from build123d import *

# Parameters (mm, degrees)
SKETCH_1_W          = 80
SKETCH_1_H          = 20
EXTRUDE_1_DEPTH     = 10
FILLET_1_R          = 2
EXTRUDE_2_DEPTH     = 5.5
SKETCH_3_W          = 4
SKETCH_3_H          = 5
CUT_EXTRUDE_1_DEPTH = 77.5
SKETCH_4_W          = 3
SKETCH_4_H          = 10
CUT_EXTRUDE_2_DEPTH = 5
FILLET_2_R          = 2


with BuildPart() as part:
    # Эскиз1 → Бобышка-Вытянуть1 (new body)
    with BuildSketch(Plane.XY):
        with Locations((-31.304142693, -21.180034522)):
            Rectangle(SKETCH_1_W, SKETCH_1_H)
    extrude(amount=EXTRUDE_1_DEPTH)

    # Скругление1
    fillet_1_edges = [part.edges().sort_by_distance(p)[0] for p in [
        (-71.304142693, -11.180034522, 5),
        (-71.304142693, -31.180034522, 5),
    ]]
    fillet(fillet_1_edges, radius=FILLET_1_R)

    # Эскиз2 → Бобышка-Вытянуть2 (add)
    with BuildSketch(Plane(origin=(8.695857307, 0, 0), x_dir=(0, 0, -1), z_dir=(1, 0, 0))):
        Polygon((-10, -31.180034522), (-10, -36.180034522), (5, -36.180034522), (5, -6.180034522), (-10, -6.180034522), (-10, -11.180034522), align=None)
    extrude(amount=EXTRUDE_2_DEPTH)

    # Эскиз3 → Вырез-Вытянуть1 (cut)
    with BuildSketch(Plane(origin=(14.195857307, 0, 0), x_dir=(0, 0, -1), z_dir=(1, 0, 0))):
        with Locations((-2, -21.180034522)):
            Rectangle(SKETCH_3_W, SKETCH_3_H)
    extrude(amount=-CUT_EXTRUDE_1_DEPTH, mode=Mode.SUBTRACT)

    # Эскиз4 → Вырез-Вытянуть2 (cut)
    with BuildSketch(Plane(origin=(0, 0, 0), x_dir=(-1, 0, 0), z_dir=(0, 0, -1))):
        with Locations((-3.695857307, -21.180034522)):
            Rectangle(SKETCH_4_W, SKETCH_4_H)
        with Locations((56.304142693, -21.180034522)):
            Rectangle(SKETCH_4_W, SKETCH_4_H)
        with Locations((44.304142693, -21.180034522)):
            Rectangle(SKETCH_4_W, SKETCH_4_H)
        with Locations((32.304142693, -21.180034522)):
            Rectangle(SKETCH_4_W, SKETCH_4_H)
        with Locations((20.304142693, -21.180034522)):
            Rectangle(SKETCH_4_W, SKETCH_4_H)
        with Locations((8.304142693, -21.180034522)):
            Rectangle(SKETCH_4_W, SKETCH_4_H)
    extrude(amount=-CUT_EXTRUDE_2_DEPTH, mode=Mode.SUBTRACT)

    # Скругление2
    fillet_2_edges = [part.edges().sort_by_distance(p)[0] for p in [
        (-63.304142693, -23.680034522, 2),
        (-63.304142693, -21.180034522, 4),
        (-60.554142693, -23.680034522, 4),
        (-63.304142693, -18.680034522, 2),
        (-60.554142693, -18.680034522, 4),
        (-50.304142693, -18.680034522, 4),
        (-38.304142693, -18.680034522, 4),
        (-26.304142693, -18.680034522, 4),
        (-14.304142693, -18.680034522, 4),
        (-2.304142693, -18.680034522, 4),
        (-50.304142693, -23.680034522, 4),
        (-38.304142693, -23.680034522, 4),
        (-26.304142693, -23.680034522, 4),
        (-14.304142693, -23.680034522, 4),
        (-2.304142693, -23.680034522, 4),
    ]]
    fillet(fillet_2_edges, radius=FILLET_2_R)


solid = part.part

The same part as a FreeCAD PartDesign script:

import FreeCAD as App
import Part
import Sketcher
from FreeCAD import Vector
Q = App.Units.Quantity


def edges_at(feature, points):
    """Names of the edges that pass closest to the given points."""
    edges = feature.Shape.Edges
    near = lambda p: min(range(len(edges)), key=lambda i: edges[i].distToShape(Part.Vertex(*p))[0])
    return sorted({f"Edge{near(p) + 1}" for p in points})

doc = App.newDocument("Part")
params = doc.addObject("Spreadsheet::Sheet", "Params")
for row, (alias, value) in enumerate([
    ("sketch1_width", "80 mm"),
    ("sketch1_height", "20 mm"),
    ("pad1_length", "10 mm"),
    ("fillet_radius", "2 mm"),
    ("sketch2_width", "30 mm"),
    ("sketch2_height", "15 mm"),
    ("pad2_length", "5.5 mm"),
    ("sketch3_width", "5 mm"),
    ("sketch3_height", "4 mm"),
    ("pocket1_length", "77.5 mm"),
    ("sketch4_width", "3 mm"),
    ("sketch4_height", "10 mm"),
    ("pocket2_length", "5 mm"),
    ("fillet2_radius", "2 mm"),
], start=1):
    params.set(f"A{row}", alias)
    params.set(f"B{row}", "=" + value)
    params.setAlias(f"B{row}", alias)

body = doc.addObject("PartDesign::Body", "Body")

# Sketch on XY plane
sketch1 = body.newObject("Sketcher::SketchObject", "Sketch")
sketch1.AttachmentSupport = (doc.getObject("XY_Plane"), [""])
sketch1.MapMode = "FlatFace"
sketch1.addGeometry(Part.LineSegment(Vector(-71, -11, 0), Vector(-71, -31, 0)), False)
sketch1.addGeometry(Part.LineSegment(Vector(-71, -31, 0), Vector(9, -31, 0)), False)
sketch1.addGeometry(Part.LineSegment(Vector(9, -31, 0), Vector(9, -11, 0)), False)
sketch1.addGeometry(Part.LineSegment(Vector(9, -11, 0), Vector(-71, -11, 0)), False)
sketch1.addConstraint(Sketcher.Constraint("Coincident", 0, 2, 1, 1))
sketch1.addConstraint(Sketcher.Constraint("Coincident", 1, 2, 2, 1))
sketch1.addConstraint(Sketcher.Constraint("Coincident", 2, 2, 3, 1))
sketch1.addConstraint(Sketcher.Constraint("Coincident", 3, 2, 0, 1))
sketch1.addConstraint(Sketcher.Constraint("Vertical", 0))
sketch1.addConstraint(Sketcher.Constraint("Horizontal", 1))
sketch1.addConstraint(Sketcher.Constraint("Vertical", 2))
sketch1.addConstraint(Sketcher.Constraint("Horizontal", 3))
sketch1.addConstraint(Sketcher.Constraint("DistanceX", 1, 1, 1, 2, Q("80 mm")))
sketch1.addConstraint(Sketcher.Constraint("DistanceY", 0, 2, 0, 1, Q("20 mm")))
sketch1.addConstraint(Sketcher.Constraint("DistanceX", 0, 2, -1, 1, Q("71.304143 mm")))
sketch1.addConstraint(Sketcher.Constraint("DistanceY", 0, 2, -1, 1, Q("31.180035 mm")))
sketch1.setExpression("Constraints[8]", "Params.sketch1_width")
sketch1.setExpression("Constraints[9]", "Params.sketch1_height")
pad1 = body.newObject("PartDesign::Pad", "Pad")
pad1.Profile = sketch1
pad1.setExpression("Length", "Params.pad1_length")
doc.recompute()

fillet = body.newObject("PartDesign::Fillet", "Fillet")
fillet.Base = (pad1, edges_at(pad1, [(-71.304, -11.18, 5), (-71.304, -31.18, 5)]))
fillet.setExpression("Radius", "Params.fillet_radius")

# Sketch on YZ plane
sketch2 = body.newObject("Sketcher::SketchObject", "Sketch001")
sketch2.AttachmentSupport = (doc.getObject("YZ_Plane"), [""])
sketch2.MapMode = "FlatFace"
sketch2.AttachmentOffset = App.Placement(Vector(0, 0, 8.695857), App.Rotation())
sketch2.addGeometry(Part.LineSegment(Vector(-36, 10, 0), Vector(-36, -5, 0)), False)
sketch2.addGeometry(Part.LineSegment(Vector(-36, -5, 0), Vector(-6, -5, 0)), False)
sketch2.addGeometry(Part.LineSegment(Vector(-6, -5, 0), Vector(-6, 10, 0)), False)
sketch2.addGeometry(Part.LineSegment(Vector(-6, 10, 0), Vector(-36, 10, 0)), False)
sketch2.addConstraint(Sketcher.Constraint("Coincident", 0, 2, 1, 1))
sketch2.addConstraint(Sketcher.Constraint("Coincident", 1, 2, 2, 1))
sketch2.addConstraint(Sketcher.Constraint("Coincident", 2, 2, 3, 1))
sketch2.addConstraint(Sketcher.Constraint("Coincident", 3, 2, 0, 1))
sketch2.addConstraint(Sketcher.Constraint("Vertical", 0))
sketch2.addConstraint(Sketcher.Constraint("Horizontal", 1))
sketch2.addConstraint(Sketcher.Constraint("Vertical", 2))
sketch2.addConstraint(Sketcher.Constraint("Horizontal", 3))
sketch2.addConstraint(Sketcher.Constraint("DistanceX", 1, 1, 1, 2, Q("30 mm")))
sketch2.addConstraint(Sketcher.Constraint("DistanceY", 0, 2, 0, 1, Q("15 mm")))
sketch2.addConstraint(Sketcher.Constraint("DistanceY", 0, 2, -1, 1, Q("5 mm")))
sketch2.addConstraint(Sketcher.Constraint("DistanceX", 0, 2, -1, 1, Q("36.180035 mm")))
sketch2.setExpression("Constraints[8]", "Params.sketch2_width")
sketch2.setExpression("Constraints[9]", "Params.sketch2_height")
pad2 = body.newObject("PartDesign::Pad", "Pad001")
pad2.Profile = sketch2
pad2.setExpression("Length", "Params.pad2_length")

# Sketch on YZ plane
sketch3 = body.newObject("Sketcher::SketchObject", "Sketch002")
sketch3.AttachmentSupport = (doc.getObject("YZ_Plane"), [""])
sketch3.MapMode = "FlatFace"
sketch3.AttachmentOffset = App.Placement(Vector(0, 0, 14.195857), App.Rotation())
sketch3.addGeometry(Part.LineSegment(Vector(-18.7, 4, 0), Vector(-23.7, 4, 0)), False)
sketch3.addGeometry(Part.LineSegment(Vector(-23.7, 4, 0), Vector(-23.7, 0, 0)), False)
sketch3.addGeometry(Part.LineSegment(Vector(-23.7, 0, 0), Vector(-18.7, 0, 0)), False)
sketch3.addGeometry(Part.LineSegment(Vector(-18.7, 0, 0), Vector(-18.7, 4, 0)), False)
sketch3.addConstraint(Sketcher.Constraint("Coincident", 0, 2, 1, 1))
sketch3.addConstraint(Sketcher.Constraint("Coincident", 1, 2, 2, 1))
sketch3.addConstraint(Sketcher.Constraint("Coincident", 2, 2, 3, 1))
sketch3.addConstraint(Sketcher.Constraint("Coincident", 3, 2, 0, 1))
sketch3.addConstraint(Sketcher.Constraint("Horizontal", 0))
sketch3.addConstraint(Sketcher.Constraint("Vertical", 1))
sketch3.addConstraint(Sketcher.Constraint("Horizontal", 2))
sketch3.addConstraint(Sketcher.Constraint("Vertical", 3))
sketch3.addConstraint(Sketcher.Constraint("PointOnObject", 1, 2, -1))
sketch3.addConstraint(Sketcher.Constraint("DistanceX", 0, 2, 0, 1, Q("5 mm")))
sketch3.addConstraint(Sketcher.Constraint("DistanceY", 1, 2, 1, 1, Q("4 mm")))
sketch3.addConstraint(Sketcher.Constraint("DistanceX", 0, 2, -1, 1, Q("23.680035 mm")))
sketch3.setExpression("Constraints[9]", "Params.sketch3_width")
sketch3.setExpression("Constraints[10]", "Params.sketch3_height")
pocket1 = body.newObject("PartDesign::Pocket", "Pocket")
pocket1.Profile = sketch3
pocket1.setExpression("Length", "Params.pocket1_length")

# Sketch on XY plane
sketch4 = body.newObject("Sketcher::SketchObject", "Sketch003")
sketch4.AttachmentSupport = (doc.getObject("XY_Plane"), [""])
sketch4.MapMode = "FlatFace"
sketch4.addGeometry(Part.LineSegment(Vector(5.2, -16.2, 0), Vector(5.2, -26.2, 0)), False)
sketch4.addGeometry(Part.LineSegment(Vector(5.2, -26.2, 0), Vector(2.2, -26.2, 0)), False)
sketch4.addGeometry(Part.LineSegment(Vector(2.2, -26.2, 0), Vector(2.2, -16.2, 0)), False)
sketch4.addGeometry(Part.LineSegment(Vector(2.2, -16.2, 0), Vector(5.2, -16.2, 0)), False)
sketch4.addGeometry(Part.LineSegment(Vector(-54.8, -16.2, 0), Vector(-54.8, -26.2, 0)), False)
sketch4.addGeometry(Part.LineSegment(Vector(-54.8, -26.2, 0), Vector(-57.8, -26.2, 0)), False)
sketch4.addGeometry(Part.LineSegment(Vector(-57.8, -26.2, 0), Vector(-57.8, -16.2, 0)), False)
sketch4.addGeometry(Part.LineSegment(Vector(-57.8, -16.2, 0), Vector(-54.8, -16.2, 0)), False)
sketch4.addGeometry(Part.LineSegment(Vector(-42.8, -16.2, 0), Vector(-42.8, -26.2, 0)), False)
sketch4.addGeometry(Part.LineSegment(Vector(-42.8, -26.2, 0), Vector(-45.8, -26.2, 0)), False)
sketch4.addGeometry(Part.LineSegment(Vector(-45.8, -26.2, 0), Vector(-45.8, -16.2, 0)), False)
sketch4.addGeometry(Part.LineSegment(Vector(-45.8, -16.2, 0), Vector(-42.8, -16.2, 0)), False)
sketch4.addGeometry(Part.LineSegment(Vector(-30.8, -16.2, 0), Vector(-30.8, -26.2, 0)), False)
sketch4.addGeometry(Part.LineSegment(Vector(-30.8, -26.2, 0), Vector(-33.8, -26.2, 0)), False)
sketch4.addGeometry(Part.LineSegment(Vector(-33.8, -26.2, 0), Vector(-33.8, -16.2, 0)), False)
sketch4.addGeometry(Part.LineSegment(Vector(-33.8, -16.2, 0), Vector(-30.8, -16.2, 0)), False)
sketch4.addGeometry(Part.LineSegment(Vector(-18.8, -16.2, 0), Vector(-18.8, -26.2, 0)), False)
sketch4.addGeometry(Part.LineSegment(Vector(-18.8, -26.2, 0), Vector(-21.8, -26.2, 0)), False)
sketch4.addGeometry(Part.LineSegment(Vector(-21.8, -26.2, 0), Vector(-21.8, -16.2, 0)), False)
sketch4.addGeometry(Part.LineSegment(Vector(-21.8, -16.2, 0), Vector(-18.8, -16.2, 0)), False)
sketch4.addGeometry(Part.LineSegment(Vector(-6.8, -16.2, 0), Vector(-6.8, -26.2, 0)), False)
sketch4.addGeometry(Part.LineSegment(Vector(-6.8, -26.2, 0), Vector(-9.8, -26.2, 0)), False)
sketch4.addGeometry(Part.LineSegment(Vector(-9.8, -26.2, 0), Vector(-9.8, -16.2, 0)), False)
sketch4.addGeometry(Part.LineSegment(Vector(-9.8, -16.2, 0), Vector(-6.8, -16.2, 0)), False)
sketch4.addConstraint(Sketcher.Constraint("Coincident", 0, 2, 1, 1))
sketch4.addConstraint(Sketcher.Constraint("Coincident", 1, 2, 2, 1))
sketch4.addConstraint(Sketcher.Constraint("Coincident", 2, 2, 3, 1))
sketch4.addConstraint(Sketcher.Constraint("Coincident", 3, 2, 0, 1))
sketch4.addConstraint(Sketcher.Constraint("Coincident", 4, 2, 5, 1))
sketch4.addConstraint(Sketcher.Constraint("Coincident", 5, 2, 6, 1))
sketch4.addConstraint(Sketcher.Constraint("Coincident", 6, 2, 7, 1))
sketch4.addConstraint(Sketcher.Constraint("Coincident", 7, 2, 4, 1))
sketch4.addConstraint(Sketcher.Constraint("Coincident", 8, 2, 9, 1))
sketch4.addConstraint(Sketcher.Constraint("Coincident", 9, 2, 10, 1))
sketch4.addConstraint(Sketcher.Constraint("Coincident", 10, 2, 11, 1))
sketch4.addConstraint(Sketcher.Constraint("Coincident", 11, 2, 8, 1))
sketch4.addConstraint(Sketcher.Constraint("Coincident", 12, 2, 13, 1))
sketch4.addConstraint(Sketcher.Constraint("Coincident", 13, 2, 14, 1))
sketch4.addConstraint(Sketcher.Constraint("Coincident", 14, 2, 15, 1))
sketch4.addConstraint(Sketcher.Constraint("Coincident", 15, 2, 12, 1))
sketch4.addConstraint(Sketcher.Constraint("Coincident", 16, 2, 17, 1))
sketch4.addConstraint(Sketcher.Constraint("Coincident", 17, 2, 18, 1))
sketch4.addConstraint(Sketcher.Constraint("Coincident", 18, 2, 19, 1))
sketch4.addConstraint(Sketcher.Constraint("Coincident", 19, 2, 16, 1))
sketch4.addConstraint(Sketcher.Constraint("Coincident", 20, 2, 21, 1))
sketch4.addConstraint(Sketcher.Constraint("Coincident", 21, 2, 22, 1))
sketch4.addConstraint(Sketcher.Constraint("Coincident", 22, 2, 23, 1))
sketch4.addConstraint(Sketcher.Constraint("Coincident", 23, 2, 20, 1))
sketch4.addConstraint(Sketcher.Constraint("Vertical", 0))
sketch4.addConstraint(Sketcher.Constraint("Horizontal", 1))
sketch4.addConstraint(Sketcher.Constraint("Vertical", 2))
sketch4.addConstraint(Sketcher.Constraint("Horizontal", 3))
sketch4.addConstraint(Sketcher.Constraint("Vertical", 4))
sketch4.addConstraint(Sketcher.Constraint("Horizontal", 5))
sketch4.addConstraint(Sketcher.Constraint("Vertical", 6))
sketch4.addConstraint(Sketcher.Constraint("Horizontal", 7))
sketch4.addConstraint(Sketcher.Constraint("Vertical", 8))
sketch4.addConstraint(Sketcher.Constraint("Horizontal", 9))
sketch4.addConstraint(Sketcher.Constraint("Vertical", 10))
sketch4.addConstraint(Sketcher.Constraint("Horizontal", 11))
sketch4.addConstraint(Sketcher.Constraint("Vertical", 12))
sketch4.addConstraint(Sketcher.Constraint("Horizontal", 13))
sketch4.addConstraint(Sketcher.Constraint("Vertical", 14))
sketch4.addConstraint(Sketcher.Constraint("Horizontal", 15))
sketch4.addConstraint(Sketcher.Constraint("Vertical", 16))
sketch4.addConstraint(Sketcher.Constraint("Horizontal", 17))
sketch4.addConstraint(Sketcher.Constraint("Vertical", 18))
sketch4.addConstraint(Sketcher.Constraint("Horizontal", 19))
sketch4.addConstraint(Sketcher.Constraint("Vertical", 20))
sketch4.addConstraint(Sketcher.Constraint("Horizontal", 21))
sketch4.addConstraint(Sketcher.Constraint("Vertical", 22))
sketch4.addConstraint(Sketcher.Constraint("Horizontal", 23))
sketch4.addConstraint(Sketcher.Constraint("Horizontal", 1, 2, 4, 2))
sketch4.addConstraint(Sketcher.Constraint("Horizontal", 3, 2, 6, 2))
sketch4.addConstraint(Sketcher.Constraint("Horizontal", 5, 2, 8, 2))
sketch4.addConstraint(Sketcher.Constraint("Horizontal", 7, 2, 10, 2))
sketch4.addConstraint(Sketcher.Constraint("Horizontal", 9, 2, 12, 2))
sketch4.addConstraint(Sketcher.Constraint("Horizontal", 11, 2, 14, 2))
sketch4.addConstraint(Sketcher.Constraint("Horizontal", 13, 2, 16, 2))
sketch4.addConstraint(Sketcher.Constraint("Horizontal", 15, 2, 18, 2))
sketch4.addConstraint(Sketcher.Constraint("Horizontal", 17, 2, 20, 2))
sketch4.addConstraint(Sketcher.Constraint("Horizontal", 19, 2, 22, 2))
sketch4.addConstraint(Sketcher.Constraint("Equal", 3, 5))
sketch4.addConstraint(Sketcher.Constraint("Equal", 7, 9))
sketch4.addConstraint(Sketcher.Constraint("Equal", 11, 13))
sketch4.addConstraint(Sketcher.Constraint("Equal", 15, 17))
sketch4.addConstraint(Sketcher.Constraint("Equal", 19, 21))
sketch4.addConstraint(Sketcher.Constraint("DistanceX", 1, 2, 1, 1, Q("3 mm")))
sketch4.addConstraint(Sketcher.Constraint("DistanceY", 0, 2, 0, 1, Q("10 mm")))
sketch4.addConstraint(Sketcher.Constraint("DistanceX", 4, 2, 1, 2, Q("57 mm")))
sketch4.addConstraint(Sketcher.Constraint("DistanceX", 4, 2, 8, 2, Q("12 mm")))
sketch4.addConstraint(Sketcher.Constraint("DistanceX", 8, 2, 12, 2, Q("12 mm")))
sketch4.addConstraint(Sketcher.Constraint("DistanceX", 12, 2, 16, 2, Q("12 mm")))
sketch4.addConstraint(Sketcher.Constraint("DistanceX", 20, 2, 1, 2, Q("9 mm")))
sketch4.addConstraint(Sketcher.Constraint("DistanceX", -1, 1, 0, 2, Q("5.195857 mm")))
sketch4.addConstraint(Sketcher.Constraint("DistanceY", 0, 2, -1, 1, Q("26.180035 mm")))
sketch4.setExpression("Constraints[63]", "Params.sketch4_width")
sketch4.setExpression("Constraints[64]", "Params.sketch4_height")
pocket2 = body.newObject("PartDesign::Pocket", "Pocket001")
pocket2.Profile = sketch4
pocket2.setExpression("Length", "Params.pocket2_length")
pocket2.Reversed = True
doc.recompute()

fillet2 = body.newObject("PartDesign::Fillet", "Fillet001")
fillet2.Base = (pocket2, edges_at(pocket2, [
    (-63.304, -23.68, 2),
    (-63.304, -21.18, 4),
    (-60.554, -23.68, 4),
    (-63.304, -18.68, 2),
    (-60.554, -18.68, 4),
    (-50.304, -18.68, 4),
    (-38.304, -18.68, 4),
    (-26.304, -18.68, 4),
    (-14.304, -18.68, 4),
    (-2.304, -18.68, 4),
    (-50.304, -23.68, 4),
    (-38.304, -23.68, 4),
    (-26.304, -23.68, 4),
    (-14.304, -23.68, 4),
    (-2.304, -23.68, 4),
]))
fillet2.setExpression("Radius", "Params.fillet2_radius")

doc.recompute()
